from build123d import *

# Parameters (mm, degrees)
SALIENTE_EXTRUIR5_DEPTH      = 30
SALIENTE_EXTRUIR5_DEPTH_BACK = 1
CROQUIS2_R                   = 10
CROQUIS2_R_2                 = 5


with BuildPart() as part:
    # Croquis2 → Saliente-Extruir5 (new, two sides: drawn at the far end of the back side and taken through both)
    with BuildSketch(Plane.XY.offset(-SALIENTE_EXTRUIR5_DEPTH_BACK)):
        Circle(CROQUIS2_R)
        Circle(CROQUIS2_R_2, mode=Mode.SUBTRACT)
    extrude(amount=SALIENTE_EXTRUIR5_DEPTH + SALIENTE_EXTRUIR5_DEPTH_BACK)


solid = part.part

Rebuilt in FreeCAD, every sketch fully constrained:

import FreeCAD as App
import Part
import Sketcher
from FreeCAD import Vector
Q = App.Units.Quantity

doc = App.newDocument("Part")
params = doc.addObject("Spreadsheet::Sheet", "Params")
for row, (alias, value) in enumerate([
    ("sketch1_diameter", "20 mm"),
    ("sketch1_diameter2", "10 mm"),
    ("pad1_length", "30 mm"),
    ("pad1_length2", "1 mm"),
], start=1):
    params.set(f"A{row}", alias)
    params.set(f"B{row}", "=" + value)
    params.setAlias(f"B{row}", alias)

body = doc.addObject("PartDesign::Body", "Body")

sketch1 = body.newObject("Sketcher::SketchObject", "Sketch")
sketch1.AttachmentSupport = (doc.getObject("XY_Plane"), [""])
sketch1.MapMode = "FlatFace"
sketch1.addGeometry([
    Part.Circle(Vector(0, 0, 0), Vector(0, 0, 1), 10),
    Part.Circle(Vector(0, 0, 0), Vector(0, 0, 1), 5),
], False)
sketch1.addConstraint([
    Sketcher.Constraint("Coincident", 0, 3, -1, 1),
    Sketcher.Constraint("Coincident", 1, 3, -1, 1),
    Sketcher.Constraint("Diameter", 0, Q("20 mm")),
    Sketcher.Constraint("Diameter", 1, Q("10 mm")),
])
sketch1.setExpression("Constraints[2]", "Params.sketch1_diameter")
sketch1.setExpression("Constraints[3]", "Params.sketch1_diameter2")
pad1 = body.newObject("PartDesign::Pad", "Pad")
pad1.Profile = sketch1
pad1.Type = "TwoLengths"
pad1.setExpression("Length", "Params.pad1_length")
pad1.setExpression("Length2", "Params.pad1_length2")

doc.recompute()
